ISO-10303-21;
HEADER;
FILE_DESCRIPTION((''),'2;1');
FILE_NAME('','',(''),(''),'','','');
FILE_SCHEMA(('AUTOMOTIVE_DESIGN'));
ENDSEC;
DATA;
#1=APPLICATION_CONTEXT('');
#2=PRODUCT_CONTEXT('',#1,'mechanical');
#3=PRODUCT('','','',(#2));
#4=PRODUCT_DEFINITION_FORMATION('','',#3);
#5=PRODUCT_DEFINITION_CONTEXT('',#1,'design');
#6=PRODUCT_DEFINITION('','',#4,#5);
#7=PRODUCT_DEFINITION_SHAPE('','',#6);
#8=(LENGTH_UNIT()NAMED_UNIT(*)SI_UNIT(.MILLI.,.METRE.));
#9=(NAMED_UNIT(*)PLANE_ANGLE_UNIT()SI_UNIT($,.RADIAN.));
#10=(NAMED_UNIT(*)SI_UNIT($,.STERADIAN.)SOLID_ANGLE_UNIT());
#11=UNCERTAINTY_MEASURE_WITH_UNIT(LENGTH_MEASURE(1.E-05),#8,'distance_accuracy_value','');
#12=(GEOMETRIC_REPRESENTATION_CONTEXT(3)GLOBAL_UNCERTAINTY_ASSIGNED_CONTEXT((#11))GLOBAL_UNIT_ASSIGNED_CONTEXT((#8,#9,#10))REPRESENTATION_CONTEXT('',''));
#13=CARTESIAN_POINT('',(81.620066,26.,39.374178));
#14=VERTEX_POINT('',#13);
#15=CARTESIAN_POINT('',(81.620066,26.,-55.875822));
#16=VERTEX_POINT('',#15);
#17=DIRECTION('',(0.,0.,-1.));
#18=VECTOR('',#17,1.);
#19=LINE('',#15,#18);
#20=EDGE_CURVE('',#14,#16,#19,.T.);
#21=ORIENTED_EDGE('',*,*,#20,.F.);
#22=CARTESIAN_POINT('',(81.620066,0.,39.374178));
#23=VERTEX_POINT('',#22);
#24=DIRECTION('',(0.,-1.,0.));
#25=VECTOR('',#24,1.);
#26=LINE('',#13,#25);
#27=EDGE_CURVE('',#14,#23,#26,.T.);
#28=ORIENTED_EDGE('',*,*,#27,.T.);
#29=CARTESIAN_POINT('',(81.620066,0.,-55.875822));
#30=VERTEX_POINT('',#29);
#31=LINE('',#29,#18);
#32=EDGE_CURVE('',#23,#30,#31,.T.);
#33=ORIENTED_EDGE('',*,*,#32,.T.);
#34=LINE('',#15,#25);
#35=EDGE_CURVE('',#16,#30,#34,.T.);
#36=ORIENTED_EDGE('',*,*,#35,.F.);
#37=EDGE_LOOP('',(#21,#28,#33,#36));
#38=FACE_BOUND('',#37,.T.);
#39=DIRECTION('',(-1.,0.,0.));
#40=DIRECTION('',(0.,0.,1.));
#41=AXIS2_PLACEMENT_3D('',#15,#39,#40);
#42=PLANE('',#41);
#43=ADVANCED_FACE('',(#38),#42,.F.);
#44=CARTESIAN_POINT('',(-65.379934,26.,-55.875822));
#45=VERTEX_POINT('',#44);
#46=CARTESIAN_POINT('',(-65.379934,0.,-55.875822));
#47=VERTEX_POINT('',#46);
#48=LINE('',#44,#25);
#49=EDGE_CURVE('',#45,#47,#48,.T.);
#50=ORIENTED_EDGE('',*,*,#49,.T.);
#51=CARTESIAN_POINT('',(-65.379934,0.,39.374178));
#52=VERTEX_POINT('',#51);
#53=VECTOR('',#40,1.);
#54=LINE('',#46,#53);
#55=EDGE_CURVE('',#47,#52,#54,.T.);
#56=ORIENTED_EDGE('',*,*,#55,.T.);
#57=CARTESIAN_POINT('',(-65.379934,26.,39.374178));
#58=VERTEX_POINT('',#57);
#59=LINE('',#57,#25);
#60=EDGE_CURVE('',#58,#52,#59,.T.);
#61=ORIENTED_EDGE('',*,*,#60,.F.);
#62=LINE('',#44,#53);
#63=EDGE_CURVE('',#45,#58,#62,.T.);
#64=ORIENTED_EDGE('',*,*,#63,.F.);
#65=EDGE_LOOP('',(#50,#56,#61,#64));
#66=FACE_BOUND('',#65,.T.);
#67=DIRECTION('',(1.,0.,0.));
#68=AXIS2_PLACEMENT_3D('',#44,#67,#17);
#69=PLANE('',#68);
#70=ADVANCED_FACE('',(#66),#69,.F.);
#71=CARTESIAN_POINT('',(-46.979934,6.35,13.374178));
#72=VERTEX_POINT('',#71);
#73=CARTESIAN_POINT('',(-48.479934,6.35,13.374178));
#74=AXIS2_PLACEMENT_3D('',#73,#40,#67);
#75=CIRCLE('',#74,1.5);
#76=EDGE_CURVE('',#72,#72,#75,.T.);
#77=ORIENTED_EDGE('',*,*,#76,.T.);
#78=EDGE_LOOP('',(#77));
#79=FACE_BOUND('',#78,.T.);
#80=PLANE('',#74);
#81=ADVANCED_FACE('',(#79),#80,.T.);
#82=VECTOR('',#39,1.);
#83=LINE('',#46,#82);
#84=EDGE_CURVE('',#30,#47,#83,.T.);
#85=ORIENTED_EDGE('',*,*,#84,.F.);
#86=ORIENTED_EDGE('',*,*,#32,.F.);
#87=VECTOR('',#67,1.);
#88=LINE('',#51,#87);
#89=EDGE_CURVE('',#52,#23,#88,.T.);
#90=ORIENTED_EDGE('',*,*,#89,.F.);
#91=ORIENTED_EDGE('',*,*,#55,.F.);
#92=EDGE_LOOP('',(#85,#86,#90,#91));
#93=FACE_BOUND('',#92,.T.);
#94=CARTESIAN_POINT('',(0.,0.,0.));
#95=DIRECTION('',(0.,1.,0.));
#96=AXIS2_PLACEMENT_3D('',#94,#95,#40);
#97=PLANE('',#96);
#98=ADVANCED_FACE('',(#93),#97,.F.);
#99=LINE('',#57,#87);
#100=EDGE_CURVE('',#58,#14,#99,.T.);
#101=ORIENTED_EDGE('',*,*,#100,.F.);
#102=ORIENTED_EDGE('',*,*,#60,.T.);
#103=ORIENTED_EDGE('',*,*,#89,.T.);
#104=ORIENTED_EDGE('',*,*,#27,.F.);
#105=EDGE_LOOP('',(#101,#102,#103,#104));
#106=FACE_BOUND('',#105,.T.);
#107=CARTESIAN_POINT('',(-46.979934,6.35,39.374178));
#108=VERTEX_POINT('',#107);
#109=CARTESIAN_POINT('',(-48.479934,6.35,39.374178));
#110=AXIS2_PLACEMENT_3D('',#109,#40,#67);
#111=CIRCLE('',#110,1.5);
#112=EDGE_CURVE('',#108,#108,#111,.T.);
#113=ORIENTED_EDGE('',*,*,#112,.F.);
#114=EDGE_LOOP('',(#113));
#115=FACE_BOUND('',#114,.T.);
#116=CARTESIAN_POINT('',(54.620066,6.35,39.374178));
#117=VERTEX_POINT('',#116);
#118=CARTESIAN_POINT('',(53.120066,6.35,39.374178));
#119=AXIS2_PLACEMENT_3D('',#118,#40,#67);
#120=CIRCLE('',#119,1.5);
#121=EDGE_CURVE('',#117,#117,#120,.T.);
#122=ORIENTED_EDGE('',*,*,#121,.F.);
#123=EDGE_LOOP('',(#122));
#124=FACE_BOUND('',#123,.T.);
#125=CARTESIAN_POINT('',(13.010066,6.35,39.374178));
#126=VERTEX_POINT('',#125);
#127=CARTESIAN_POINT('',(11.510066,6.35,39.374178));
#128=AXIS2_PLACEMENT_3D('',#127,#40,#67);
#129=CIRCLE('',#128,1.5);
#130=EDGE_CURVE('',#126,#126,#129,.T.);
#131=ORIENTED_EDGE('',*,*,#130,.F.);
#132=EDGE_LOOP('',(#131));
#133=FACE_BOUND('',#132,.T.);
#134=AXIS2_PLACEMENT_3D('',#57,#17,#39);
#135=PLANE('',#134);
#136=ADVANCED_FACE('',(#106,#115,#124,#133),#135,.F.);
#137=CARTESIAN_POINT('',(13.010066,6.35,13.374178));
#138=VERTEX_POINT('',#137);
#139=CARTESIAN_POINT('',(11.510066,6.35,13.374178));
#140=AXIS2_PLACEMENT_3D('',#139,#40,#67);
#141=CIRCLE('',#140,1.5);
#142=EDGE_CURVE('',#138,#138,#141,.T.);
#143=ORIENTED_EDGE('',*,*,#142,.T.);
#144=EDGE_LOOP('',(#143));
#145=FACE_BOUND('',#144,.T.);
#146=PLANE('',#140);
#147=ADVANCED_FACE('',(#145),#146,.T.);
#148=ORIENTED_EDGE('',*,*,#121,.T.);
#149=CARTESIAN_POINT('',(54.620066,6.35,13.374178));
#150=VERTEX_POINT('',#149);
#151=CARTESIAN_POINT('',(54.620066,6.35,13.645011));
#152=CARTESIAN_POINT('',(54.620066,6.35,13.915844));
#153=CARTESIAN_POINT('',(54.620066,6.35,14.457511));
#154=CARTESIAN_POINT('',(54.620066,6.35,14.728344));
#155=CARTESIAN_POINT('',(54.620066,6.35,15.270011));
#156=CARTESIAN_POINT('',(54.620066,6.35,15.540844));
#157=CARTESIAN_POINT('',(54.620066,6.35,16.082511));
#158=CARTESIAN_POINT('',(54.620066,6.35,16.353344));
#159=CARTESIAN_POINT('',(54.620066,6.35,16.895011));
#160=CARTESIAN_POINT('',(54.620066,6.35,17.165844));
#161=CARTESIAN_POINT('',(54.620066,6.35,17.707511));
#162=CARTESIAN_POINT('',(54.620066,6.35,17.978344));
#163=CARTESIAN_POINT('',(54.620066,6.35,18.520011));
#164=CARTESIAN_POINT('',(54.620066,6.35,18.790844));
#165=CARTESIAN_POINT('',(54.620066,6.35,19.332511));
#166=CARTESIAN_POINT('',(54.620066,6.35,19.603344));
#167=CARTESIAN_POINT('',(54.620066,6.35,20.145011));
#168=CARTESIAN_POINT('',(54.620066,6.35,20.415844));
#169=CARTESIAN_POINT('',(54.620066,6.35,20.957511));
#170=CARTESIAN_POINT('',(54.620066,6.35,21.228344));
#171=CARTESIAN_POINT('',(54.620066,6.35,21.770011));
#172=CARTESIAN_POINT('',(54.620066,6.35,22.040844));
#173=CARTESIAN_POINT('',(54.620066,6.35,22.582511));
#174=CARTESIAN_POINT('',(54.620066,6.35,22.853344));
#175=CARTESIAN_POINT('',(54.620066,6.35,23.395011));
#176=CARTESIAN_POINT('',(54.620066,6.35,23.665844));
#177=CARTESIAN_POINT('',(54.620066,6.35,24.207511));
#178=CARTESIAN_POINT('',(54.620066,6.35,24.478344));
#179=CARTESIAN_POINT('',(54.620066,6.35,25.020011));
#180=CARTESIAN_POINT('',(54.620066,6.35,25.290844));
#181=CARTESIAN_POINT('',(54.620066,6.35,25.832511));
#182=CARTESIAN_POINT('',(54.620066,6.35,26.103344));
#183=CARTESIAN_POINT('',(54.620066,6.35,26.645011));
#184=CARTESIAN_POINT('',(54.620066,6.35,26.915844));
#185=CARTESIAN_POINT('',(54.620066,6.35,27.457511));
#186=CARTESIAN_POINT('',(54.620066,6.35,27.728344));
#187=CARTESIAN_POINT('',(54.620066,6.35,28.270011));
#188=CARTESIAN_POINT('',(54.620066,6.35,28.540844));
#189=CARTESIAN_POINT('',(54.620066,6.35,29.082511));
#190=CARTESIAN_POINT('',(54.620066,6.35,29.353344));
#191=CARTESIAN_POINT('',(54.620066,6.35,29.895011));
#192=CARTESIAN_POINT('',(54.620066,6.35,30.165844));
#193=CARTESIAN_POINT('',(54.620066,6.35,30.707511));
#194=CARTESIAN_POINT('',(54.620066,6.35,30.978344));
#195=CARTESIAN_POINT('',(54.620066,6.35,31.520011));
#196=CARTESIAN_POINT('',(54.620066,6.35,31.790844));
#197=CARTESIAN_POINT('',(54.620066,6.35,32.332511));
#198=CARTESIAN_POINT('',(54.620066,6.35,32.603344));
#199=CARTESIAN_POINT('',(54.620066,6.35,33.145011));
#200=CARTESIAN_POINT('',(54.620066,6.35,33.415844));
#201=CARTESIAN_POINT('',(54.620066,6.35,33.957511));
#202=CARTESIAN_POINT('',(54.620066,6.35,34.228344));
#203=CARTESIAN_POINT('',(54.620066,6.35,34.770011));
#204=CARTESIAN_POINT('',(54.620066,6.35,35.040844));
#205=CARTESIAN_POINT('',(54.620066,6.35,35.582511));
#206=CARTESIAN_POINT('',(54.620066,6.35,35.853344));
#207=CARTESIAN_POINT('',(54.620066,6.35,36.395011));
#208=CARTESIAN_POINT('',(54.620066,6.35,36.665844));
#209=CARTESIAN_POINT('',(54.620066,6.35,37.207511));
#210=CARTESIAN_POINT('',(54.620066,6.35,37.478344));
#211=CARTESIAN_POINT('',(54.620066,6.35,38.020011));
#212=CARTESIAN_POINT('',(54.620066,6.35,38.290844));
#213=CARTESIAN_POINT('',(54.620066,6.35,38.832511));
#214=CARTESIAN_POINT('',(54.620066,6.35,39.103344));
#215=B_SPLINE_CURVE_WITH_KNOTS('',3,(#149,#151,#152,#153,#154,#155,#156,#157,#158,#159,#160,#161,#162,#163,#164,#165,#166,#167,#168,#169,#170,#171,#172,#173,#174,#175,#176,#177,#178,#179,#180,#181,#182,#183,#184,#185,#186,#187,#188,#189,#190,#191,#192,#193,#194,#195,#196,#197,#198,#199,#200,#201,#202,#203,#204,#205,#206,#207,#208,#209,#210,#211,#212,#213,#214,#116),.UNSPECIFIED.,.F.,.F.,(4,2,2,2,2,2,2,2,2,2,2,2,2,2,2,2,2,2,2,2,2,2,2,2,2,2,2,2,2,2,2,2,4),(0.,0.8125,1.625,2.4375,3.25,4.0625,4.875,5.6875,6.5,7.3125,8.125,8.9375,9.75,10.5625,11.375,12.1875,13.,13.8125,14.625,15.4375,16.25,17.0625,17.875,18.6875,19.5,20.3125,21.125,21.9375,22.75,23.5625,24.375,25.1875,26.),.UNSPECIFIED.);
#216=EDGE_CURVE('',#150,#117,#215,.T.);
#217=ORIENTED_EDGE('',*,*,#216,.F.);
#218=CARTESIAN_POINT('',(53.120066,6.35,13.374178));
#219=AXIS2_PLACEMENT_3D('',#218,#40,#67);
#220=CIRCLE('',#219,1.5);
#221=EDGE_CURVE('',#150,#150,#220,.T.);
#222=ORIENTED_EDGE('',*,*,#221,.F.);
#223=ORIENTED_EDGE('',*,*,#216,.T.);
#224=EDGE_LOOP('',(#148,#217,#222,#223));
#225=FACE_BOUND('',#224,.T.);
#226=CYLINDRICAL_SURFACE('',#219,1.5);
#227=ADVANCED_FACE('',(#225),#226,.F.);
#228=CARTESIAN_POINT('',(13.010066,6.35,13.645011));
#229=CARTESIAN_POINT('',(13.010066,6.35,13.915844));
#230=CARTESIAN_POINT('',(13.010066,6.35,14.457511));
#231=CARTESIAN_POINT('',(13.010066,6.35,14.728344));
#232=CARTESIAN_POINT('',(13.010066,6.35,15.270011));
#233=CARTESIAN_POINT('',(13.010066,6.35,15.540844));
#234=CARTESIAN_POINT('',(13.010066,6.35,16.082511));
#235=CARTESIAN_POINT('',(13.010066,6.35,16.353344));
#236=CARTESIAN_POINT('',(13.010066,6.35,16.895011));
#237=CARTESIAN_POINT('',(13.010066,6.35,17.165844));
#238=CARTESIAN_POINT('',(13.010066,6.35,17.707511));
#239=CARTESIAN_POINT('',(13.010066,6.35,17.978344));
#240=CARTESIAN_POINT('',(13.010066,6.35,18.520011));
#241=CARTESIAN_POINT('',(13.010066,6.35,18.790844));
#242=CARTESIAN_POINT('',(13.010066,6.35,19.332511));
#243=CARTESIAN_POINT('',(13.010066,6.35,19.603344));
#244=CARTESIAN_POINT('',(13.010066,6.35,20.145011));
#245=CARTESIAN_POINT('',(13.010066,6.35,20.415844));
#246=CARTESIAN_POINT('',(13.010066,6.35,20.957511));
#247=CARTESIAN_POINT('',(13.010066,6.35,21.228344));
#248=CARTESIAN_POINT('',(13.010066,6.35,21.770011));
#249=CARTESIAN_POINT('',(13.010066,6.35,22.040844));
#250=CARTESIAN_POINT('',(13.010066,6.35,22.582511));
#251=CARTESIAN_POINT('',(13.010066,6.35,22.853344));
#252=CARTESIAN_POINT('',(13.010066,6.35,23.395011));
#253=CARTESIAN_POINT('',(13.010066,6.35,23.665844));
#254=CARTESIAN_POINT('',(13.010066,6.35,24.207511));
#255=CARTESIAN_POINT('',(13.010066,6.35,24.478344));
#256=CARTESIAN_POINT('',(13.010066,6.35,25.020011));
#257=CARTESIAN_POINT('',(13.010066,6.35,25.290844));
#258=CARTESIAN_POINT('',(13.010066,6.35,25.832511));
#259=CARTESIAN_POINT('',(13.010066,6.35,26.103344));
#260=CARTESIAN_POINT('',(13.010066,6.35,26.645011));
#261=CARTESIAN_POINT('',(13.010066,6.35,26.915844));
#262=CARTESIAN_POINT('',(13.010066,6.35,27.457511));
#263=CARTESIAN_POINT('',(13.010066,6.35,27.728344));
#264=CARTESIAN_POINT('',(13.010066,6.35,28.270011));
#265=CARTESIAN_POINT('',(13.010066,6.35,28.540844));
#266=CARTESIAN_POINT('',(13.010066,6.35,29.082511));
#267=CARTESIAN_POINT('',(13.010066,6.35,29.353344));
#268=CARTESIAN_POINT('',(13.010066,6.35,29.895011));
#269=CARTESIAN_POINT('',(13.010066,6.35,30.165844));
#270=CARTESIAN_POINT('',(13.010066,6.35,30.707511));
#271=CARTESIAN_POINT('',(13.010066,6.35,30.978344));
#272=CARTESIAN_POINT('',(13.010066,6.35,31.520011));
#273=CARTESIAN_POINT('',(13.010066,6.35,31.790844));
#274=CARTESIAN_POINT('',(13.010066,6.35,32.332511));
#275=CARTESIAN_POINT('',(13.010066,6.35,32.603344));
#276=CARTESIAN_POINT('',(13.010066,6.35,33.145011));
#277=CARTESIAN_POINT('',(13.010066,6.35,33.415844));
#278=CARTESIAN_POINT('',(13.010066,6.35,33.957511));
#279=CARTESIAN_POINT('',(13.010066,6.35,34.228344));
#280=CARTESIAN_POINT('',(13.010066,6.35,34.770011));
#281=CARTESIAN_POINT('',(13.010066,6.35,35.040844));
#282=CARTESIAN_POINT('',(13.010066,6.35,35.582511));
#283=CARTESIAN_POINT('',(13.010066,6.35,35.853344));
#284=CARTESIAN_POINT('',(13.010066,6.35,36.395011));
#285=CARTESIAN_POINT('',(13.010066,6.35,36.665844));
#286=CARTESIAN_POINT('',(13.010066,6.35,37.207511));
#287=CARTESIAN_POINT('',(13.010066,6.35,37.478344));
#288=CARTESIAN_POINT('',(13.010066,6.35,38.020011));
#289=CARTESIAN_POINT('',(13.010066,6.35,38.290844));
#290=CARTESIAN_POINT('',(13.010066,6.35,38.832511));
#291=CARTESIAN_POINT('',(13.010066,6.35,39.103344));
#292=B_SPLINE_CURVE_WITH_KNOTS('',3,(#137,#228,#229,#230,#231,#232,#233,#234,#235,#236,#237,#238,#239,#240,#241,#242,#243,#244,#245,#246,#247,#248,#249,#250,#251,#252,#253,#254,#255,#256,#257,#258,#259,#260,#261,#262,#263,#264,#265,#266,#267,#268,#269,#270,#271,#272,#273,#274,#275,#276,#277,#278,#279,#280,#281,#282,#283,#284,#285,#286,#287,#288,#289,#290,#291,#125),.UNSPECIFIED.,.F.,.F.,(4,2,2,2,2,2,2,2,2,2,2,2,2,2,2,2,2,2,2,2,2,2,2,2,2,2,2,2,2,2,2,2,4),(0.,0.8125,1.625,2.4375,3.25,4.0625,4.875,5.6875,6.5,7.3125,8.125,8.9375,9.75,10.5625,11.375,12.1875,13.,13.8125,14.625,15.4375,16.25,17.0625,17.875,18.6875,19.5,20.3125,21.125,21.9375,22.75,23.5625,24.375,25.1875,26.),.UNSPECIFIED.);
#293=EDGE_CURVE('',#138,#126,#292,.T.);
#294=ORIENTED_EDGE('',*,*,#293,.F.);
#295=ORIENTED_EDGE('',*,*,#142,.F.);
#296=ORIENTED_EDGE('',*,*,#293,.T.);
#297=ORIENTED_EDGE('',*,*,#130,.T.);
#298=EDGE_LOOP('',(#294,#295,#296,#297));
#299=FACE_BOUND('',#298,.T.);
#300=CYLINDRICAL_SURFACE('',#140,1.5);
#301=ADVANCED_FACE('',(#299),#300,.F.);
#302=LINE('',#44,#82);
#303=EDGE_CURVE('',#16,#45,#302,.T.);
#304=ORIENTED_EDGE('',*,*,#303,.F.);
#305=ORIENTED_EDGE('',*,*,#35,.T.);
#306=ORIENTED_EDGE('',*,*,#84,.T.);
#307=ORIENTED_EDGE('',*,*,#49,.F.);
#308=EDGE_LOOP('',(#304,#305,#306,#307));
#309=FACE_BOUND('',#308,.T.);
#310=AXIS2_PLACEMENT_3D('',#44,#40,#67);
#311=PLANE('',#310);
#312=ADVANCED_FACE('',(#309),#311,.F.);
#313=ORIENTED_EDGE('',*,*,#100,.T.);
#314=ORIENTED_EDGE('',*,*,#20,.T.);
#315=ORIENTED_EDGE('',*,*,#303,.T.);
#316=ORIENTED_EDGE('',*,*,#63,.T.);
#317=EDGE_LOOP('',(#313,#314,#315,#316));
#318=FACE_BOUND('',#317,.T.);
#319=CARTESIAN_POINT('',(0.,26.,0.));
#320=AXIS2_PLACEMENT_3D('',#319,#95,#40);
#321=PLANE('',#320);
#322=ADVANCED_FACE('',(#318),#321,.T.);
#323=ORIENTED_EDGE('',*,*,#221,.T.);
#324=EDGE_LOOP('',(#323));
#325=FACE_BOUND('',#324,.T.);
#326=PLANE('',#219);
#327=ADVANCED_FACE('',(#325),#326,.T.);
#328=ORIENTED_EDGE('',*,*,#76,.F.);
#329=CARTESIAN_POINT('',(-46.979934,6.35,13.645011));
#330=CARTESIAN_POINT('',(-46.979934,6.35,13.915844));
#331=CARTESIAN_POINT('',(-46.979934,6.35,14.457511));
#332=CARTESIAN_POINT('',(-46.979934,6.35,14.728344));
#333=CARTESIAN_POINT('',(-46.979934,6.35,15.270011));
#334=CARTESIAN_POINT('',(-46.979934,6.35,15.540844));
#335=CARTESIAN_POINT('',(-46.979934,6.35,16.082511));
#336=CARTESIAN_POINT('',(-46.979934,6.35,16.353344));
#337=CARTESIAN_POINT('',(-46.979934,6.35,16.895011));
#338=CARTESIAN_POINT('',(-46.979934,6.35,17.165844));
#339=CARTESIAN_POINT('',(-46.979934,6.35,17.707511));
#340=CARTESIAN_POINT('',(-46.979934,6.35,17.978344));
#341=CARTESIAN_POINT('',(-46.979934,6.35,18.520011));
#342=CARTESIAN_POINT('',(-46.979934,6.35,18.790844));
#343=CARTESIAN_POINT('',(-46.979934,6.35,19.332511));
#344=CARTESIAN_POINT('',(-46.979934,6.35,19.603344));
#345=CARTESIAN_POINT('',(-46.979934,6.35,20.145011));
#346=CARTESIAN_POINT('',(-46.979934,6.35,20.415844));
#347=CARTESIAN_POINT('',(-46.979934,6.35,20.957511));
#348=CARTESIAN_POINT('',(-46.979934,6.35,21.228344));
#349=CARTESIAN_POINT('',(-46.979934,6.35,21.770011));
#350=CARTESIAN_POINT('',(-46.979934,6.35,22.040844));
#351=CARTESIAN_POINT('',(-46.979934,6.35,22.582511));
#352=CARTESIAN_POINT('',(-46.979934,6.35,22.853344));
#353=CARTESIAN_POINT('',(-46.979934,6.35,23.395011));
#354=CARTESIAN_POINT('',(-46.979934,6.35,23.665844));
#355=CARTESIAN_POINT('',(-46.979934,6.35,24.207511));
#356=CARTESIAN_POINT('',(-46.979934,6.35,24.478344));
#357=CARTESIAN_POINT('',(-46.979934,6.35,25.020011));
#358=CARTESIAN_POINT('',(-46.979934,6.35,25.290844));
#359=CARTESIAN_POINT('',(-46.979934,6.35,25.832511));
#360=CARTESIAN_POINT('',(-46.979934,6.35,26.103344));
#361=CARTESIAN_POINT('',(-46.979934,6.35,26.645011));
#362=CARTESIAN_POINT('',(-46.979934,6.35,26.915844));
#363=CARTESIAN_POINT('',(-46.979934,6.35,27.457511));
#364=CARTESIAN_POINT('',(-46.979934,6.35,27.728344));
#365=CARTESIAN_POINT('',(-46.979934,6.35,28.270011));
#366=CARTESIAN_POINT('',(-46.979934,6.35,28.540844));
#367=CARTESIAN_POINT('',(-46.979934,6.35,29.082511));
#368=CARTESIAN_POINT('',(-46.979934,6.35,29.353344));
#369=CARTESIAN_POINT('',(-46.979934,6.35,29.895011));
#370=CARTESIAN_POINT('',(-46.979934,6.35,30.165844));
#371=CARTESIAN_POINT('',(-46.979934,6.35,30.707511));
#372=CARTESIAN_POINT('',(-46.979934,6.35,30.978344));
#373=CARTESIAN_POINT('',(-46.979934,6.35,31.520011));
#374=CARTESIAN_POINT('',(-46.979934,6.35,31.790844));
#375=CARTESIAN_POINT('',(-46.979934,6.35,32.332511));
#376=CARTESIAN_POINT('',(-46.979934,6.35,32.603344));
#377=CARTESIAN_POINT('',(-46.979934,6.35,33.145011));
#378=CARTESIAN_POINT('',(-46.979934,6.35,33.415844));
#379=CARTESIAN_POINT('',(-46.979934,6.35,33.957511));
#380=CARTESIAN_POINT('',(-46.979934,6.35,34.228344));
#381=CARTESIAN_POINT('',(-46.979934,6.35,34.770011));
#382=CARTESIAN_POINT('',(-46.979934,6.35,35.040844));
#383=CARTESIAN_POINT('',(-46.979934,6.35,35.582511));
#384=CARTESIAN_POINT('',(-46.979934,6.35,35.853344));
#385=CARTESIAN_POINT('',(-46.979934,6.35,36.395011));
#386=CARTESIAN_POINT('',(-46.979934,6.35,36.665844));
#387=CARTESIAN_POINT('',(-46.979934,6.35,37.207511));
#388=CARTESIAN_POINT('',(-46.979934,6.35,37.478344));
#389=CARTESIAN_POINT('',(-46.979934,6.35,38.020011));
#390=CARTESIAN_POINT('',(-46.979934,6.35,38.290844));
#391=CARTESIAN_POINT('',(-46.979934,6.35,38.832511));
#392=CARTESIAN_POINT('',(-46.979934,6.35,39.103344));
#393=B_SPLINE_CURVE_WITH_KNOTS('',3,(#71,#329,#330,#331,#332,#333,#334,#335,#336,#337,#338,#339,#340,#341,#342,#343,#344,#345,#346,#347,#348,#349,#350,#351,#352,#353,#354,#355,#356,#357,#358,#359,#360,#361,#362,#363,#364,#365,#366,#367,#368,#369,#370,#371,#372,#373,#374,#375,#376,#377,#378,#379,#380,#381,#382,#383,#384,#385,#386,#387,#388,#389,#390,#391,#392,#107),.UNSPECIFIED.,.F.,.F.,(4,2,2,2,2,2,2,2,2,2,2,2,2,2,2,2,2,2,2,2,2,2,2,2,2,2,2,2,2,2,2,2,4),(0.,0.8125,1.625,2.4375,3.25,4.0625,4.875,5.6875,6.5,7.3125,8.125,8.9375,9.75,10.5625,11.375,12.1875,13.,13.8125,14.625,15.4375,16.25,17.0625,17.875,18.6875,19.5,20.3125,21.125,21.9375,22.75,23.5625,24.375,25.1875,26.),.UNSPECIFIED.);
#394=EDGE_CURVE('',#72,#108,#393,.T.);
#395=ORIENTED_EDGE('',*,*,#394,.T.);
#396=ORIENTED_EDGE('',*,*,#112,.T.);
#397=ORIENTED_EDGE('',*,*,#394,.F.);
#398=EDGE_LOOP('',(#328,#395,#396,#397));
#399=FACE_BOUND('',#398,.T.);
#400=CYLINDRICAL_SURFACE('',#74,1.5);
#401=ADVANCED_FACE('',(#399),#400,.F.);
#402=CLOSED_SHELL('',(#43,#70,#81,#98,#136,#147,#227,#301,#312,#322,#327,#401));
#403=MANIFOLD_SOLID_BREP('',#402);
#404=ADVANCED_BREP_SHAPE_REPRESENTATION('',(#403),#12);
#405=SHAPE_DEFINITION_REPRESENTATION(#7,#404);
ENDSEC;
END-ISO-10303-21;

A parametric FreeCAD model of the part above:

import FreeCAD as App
import Part
import Sketcher

V = App.Vector
Q = App.Units.Quantity

doc = App.newDocument("Part")
body = doc.addObject("PartDesign::Body", "Body")

# Sketch on XZ plane
sketch1 = body.newObject("Sketcher::SketchObject", "Sketch")
sketch1.AttachmentSupport = (doc.getObject("XZ_Plane"), [""])
sketch1.MapMode = "FlatFace"
sketch1.addGeometry(Part.LineSegment(V(-65, -56, 0), V(-65, 39, 0)), False)
sketch1.addGeometry(Part.LineSegment(V(-65, 39, 0), V(82, 39, 0)), False)
sketch1.addGeometry(Part.LineSegment(V(82, 39, 0), V(82, -56, 0)), False)
sketch1.addGeometry(Part.LineSegment(V(82, -56, 0), V(-65, -56, 0)), False)
sketch1.addConstraint(Sketcher.Constraint("Coincident", 0, 2, 1, 1))
sketch1.addConstraint(Sketcher.Constraint("Coincident", 1, 2, 2, 1))
sketch1.addConstraint(Sketcher.Constraint("Coincident", 2, 2, 3, 1))
sketch1.addConstraint(Sketcher.Constraint("Coincident", 3, 2, 0, 1))
sketch1.addConstraint(Sketcher.Constraint("Vertical", 0))
sketch1.addConstraint(Sketcher.Constraint("Horizontal", 1))
sketch1.addConstraint(Sketcher.Constraint("Vertical", 2))
sketch1.addConstraint(Sketcher.Constraint("Horizontal", 3))
sketch1.addConstraint(Sketcher.Constraint("DistanceX", 1, 1, 1, 2, Q("147 mm")))
sketch1.addConstraint(Sketcher.Constraint("DistanceY", 0, 1, 0, 2, Q("95.25 mm")))
sketch1.addConstraint(Sketcher.Constraint("DistanceX", 0, 2, -1, 1, Q("65.379934 mm")))
sketch1.addConstraint(Sketcher.Constraint("DistanceY", -1, 1, 0, 2, Q("39.374178 mm")))
pad1 = body.newObject("PartDesign::Pad", "Pad")
pad1.Profile = sketch1
pad1.Length = 26
pad1.Reversed = True

# Sketch on XY plane
sketch2 = body.newObject("Sketcher::SketchObject", "Sketch001")
sketch2.AttachmentSupport = (doc.getObject("XY_Plane"), [""])
sketch2.MapMode = "FlatFace"
sketch2.AttachmentOffset = App.Placement(V(0, 0, 39.374178), App.Rotation())
sketch2.addGeometry(Part.Circle(V(-48.5, 6.3, 0), V(0, 0, 1), 1.5), False)
sketch2.addGeometry(Part.Circle(V(11.5, 6.3, 0), V(0, 0, 1), 1.5), False)
sketch2.addGeometry(Part.Circle(V(53.1, 6.3, 0), V(0, 0, 1), 1.5), False)
sketch2.addConstraint(Sketcher.Constraint("Equal", 0, 1))
sketch2.addConstraint(Sketcher.Constraint("Equal", 1, 2))
sketch2.addConstraint(Sketcher.Constraint("Horizontal", 0, 3, 1, 3))
sketch2.addConstraint(Sketcher.Constraint("Horizontal", 1, 3, 2, 3))
sketch2.addConstraint(Sketcher.Constraint("Diameter", 0, Q("3 mm")))
sketch2.addConstraint(Sketcher.Constraint("DistanceX", 0, 3, 2, 3, Q("101.6 mm")))
sketch2.addConstraint(Sketcher.Constraint("DistanceY", -1, 1, 0, 3, Q("6.35 mm")))
sketch2.addConstraint(Sketcher.Constraint("DistanceX", 0, 3, 1, 3, Q("59.99 mm")))
sketch2.addConstraint(Sketcher.Constraint("DistanceX", 0, 3, -1, 1, Q("48.479934 mm")))
pocket1 = body.newObject("PartDesign::Pocket", "Pocket")
pocket1.Profile = sketch2
pocket1.Length = 26

doc.recompute()
